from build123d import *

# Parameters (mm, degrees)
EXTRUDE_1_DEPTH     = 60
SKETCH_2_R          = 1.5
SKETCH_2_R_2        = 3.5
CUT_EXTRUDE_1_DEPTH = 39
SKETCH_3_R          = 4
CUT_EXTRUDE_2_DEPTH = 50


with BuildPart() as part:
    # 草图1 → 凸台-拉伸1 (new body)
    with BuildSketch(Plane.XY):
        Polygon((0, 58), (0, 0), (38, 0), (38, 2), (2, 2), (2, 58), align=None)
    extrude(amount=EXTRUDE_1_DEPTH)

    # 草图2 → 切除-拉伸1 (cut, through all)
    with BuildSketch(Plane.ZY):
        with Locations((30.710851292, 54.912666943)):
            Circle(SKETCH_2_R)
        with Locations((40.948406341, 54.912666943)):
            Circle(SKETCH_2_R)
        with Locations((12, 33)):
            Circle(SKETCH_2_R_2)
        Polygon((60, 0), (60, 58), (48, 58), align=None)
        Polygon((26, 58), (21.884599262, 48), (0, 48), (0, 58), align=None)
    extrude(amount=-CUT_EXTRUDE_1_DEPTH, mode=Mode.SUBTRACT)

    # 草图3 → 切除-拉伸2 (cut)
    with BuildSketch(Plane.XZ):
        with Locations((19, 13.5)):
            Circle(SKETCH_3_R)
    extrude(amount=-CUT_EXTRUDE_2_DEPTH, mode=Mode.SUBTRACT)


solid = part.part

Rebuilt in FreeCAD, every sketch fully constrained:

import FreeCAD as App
import Part
import Sketcher
from FreeCAD import Vector
Q = App.Units.Quantity


def add_polygon(sketch, points):
    """Adds a closed chain of lines whose ends are joined by coincident constraints."""
    first, n = sketch.GeometryCount, len(points)
    for a, b in zip(points, points[1:] + points[:1]):
        sketch.addGeometry(Part.LineSegment(App.Vector(*a, 0), App.Vector(*b, 0)), False)
    for i in range(n):
        sketch.addConstraint(Sketcher.Constraint("Coincident", first + i, 2, first + (i + 1) % n, 1))

doc = App.newDocument("Part")
body = doc.addObject("PartDesign::Body", "Body")

# Sketch on XY plane
sketch1 = body.newObject("Sketcher::SketchObject", "Sketch")
sketch1.AttachmentSupport = (doc.getObject("XY_Plane"), [""])
sketch1.MapMode = "FlatFace"
add_polygon(sketch1, [(0, 58), (0, 0), (38, 0), (38, 2), (2, 2), (2, 58)])  # lines 0-5
sketch1.addConstraint(Sketcher.Constraint("Vertical", 0))
sketch1.addConstraint(Sketcher.Constraint("Horizontal", 1))
sketch1.addConstraint(Sketcher.Constraint("Vertical", 2))
sketch1.addConstraint(Sketcher.Constraint("Horizontal", 3))
sketch1.addConstraint(Sketcher.Constraint("Vertical", 4))
sketch1.addConstraint(Sketcher.Constraint("Horizontal", 5))
sketch1.addConstraint(Sketcher.Constraint("Coincident", 0, 2, -1, 1))
sketch1.addConstraint(Sketcher.Constraint("Equal", 5, 2))
sketch1.addConstraint(Sketcher.Constraint("DistanceX", 1, 1, 1, 2, Q("38 mm")))
sketch1.addConstraint(Sketcher.Constraint("DistanceX", 3, 2, 3, 1, Q("36 mm")))
sketch1.addConstraint(Sketcher.Constraint("DistanceY", 0, 2, 0, 1, Q("58 mm")))
pad1 = body.newObject("PartDesign::Pad", "Pad")
pad1.Profile = sketch1
pad1.Length = 60

# Sketch on YZ plane
sketch2 = body.newObject("Sketcher::SketchObject", "Sketch001")
sketch2.AttachmentSupport = (doc.getObject("YZ_Plane"), [""])
sketch2.MapMode = "FlatFace"
sketch2.addGeometry(Part.Circle(Vector(54.9, 30.7, 0), Vector(0, 0, 1), 1.5), False)  # 0
sketch2.addGeometry(Part.Circle(Vector(54.9, 40.9, 0), Vector(0, 0, 1), 1.5), False)  # 1
sketch2.addGeometry(Part.Circle(Vector(33, 12, 0), Vector(0, 0, 1), 3.5), False)  # 2
add_polygon(sketch2, [(0, 60), (58, 60), (58, 48)])  # lines 3-5
add_polygon(sketch2, [(48, 21.9), (58, 26), (58, 0), (48, 0)])  # lines 6-9
sketch2.addConstraint(Sketcher.Constraint("Horizontal", 3))
sketch2.addConstraint(Sketcher.Constraint("Vertical", 4))
sketch2.addConstraint(Sketcher.Constraint("Vertical", 7))
sketch2.addConstraint(Sketcher.Constraint("Horizontal", 8))
sketch2.addConstraint(Sketcher.Constraint("Vertical", 9))
sketch2.addConstraint(Sketcher.Constraint("Equal", 0, 1))
sketch2.addConstraint(Sketcher.Constraint("PointOnObject", 5, 2, -2))
sketch2.addConstraint(Sketcher.Constraint("PointOnObject", 7, 2, -1))
sketch2.addConstraint(Sketcher.Constraint("Vertical", 0, 3, 1, 3))
sketch2.addConstraint(Sketcher.Constraint("Vertical", 4, 2, 6, 2))
sketch2.addConstraint(Sketcher.Constraint("Diameter", 0, Q("3 mm")))
sketch2.addConstraint(Sketcher.Constraint("Diameter", 2, Q("7 mm")))
sketch2.addConstraint(Sketcher.Constraint("DistanceX", 3, 1, 3, 2, Q("58 mm")))
sketch2.addConstraint(Sketcher.Constraint("DistanceX", 8, 2, 8, 1, Q("10 mm")))
sketch2.addConstraint(Sketcher.Constraint("DistanceY", 4, 2, 4, 1, Q("12 mm")))
sketch2.addConstraint(Sketcher.Constraint("DistanceY", 7, 2, 7, 1, Q("26 mm")))
sketch2.addConstraint(Sketcher.Constraint("DistanceX", -1, 1, 2, 3, Q("33 mm")))
sketch2.addConstraint(Sketcher.Constraint("DistanceY", -1, 1, 2, 3, Q("12 mm")))
sketch2.addConstraint(Sketcher.Constraint("DistanceY", -1, 1, 3, 2, Q("60 mm")))
sketch2.addConstraint(Sketcher.Constraint("DistanceY", 9, 1, 9, 2, Q("21.884599 mm")))
sketch2.addConstraint(Sketcher.Constraint("DistanceY", -1, 1, 0, 3, Q("30.710851 mm")))
sketch2.addConstraint(Sketcher.Constraint("DistanceX", -1, 1, 0, 3, Q("54.912667 mm")))
sketch2.addConstraint(Sketcher.Constraint("DistanceY", -1, 1, 1, 3, Q("40.948406 mm")))
pocket1 = body.newObject("PartDesign::Pocket", "Pocket")
pocket1.Profile = sketch2
pocket1.Type = "ThroughAll"
pocket1.Reversed = True

# Sketch on XZ plane
sketch3 = body.newObject("Sketcher::SketchObject", "Sketch002")
sketch3.AttachmentSupport = (doc.getObject("XZ_Plane"), [""])
sketch3.MapMode = "FlatFace"
sketch3.addGeometry(Part.Circle(Vector(19, 13.5, 0), Vector(0, 0, 1), 4), False)
sketch3.addConstraint(Sketcher.Constraint("Diameter", 0, Q("8 mm")))
sketch3.addConstraint(Sketcher.Constraint("DistanceX", -1, 1, 0, 3, Q("19 mm")))
sketch3.addConstraint(Sketcher.Constraint("DistanceY", -1, 1, 0, 3, Q("13.5 mm")))
pocket2 = body.newObject("PartDesign::Pocket", "Pocket001")
pocket2.Profile = sketch3
pocket2.Length = 50

doc.recompute()
